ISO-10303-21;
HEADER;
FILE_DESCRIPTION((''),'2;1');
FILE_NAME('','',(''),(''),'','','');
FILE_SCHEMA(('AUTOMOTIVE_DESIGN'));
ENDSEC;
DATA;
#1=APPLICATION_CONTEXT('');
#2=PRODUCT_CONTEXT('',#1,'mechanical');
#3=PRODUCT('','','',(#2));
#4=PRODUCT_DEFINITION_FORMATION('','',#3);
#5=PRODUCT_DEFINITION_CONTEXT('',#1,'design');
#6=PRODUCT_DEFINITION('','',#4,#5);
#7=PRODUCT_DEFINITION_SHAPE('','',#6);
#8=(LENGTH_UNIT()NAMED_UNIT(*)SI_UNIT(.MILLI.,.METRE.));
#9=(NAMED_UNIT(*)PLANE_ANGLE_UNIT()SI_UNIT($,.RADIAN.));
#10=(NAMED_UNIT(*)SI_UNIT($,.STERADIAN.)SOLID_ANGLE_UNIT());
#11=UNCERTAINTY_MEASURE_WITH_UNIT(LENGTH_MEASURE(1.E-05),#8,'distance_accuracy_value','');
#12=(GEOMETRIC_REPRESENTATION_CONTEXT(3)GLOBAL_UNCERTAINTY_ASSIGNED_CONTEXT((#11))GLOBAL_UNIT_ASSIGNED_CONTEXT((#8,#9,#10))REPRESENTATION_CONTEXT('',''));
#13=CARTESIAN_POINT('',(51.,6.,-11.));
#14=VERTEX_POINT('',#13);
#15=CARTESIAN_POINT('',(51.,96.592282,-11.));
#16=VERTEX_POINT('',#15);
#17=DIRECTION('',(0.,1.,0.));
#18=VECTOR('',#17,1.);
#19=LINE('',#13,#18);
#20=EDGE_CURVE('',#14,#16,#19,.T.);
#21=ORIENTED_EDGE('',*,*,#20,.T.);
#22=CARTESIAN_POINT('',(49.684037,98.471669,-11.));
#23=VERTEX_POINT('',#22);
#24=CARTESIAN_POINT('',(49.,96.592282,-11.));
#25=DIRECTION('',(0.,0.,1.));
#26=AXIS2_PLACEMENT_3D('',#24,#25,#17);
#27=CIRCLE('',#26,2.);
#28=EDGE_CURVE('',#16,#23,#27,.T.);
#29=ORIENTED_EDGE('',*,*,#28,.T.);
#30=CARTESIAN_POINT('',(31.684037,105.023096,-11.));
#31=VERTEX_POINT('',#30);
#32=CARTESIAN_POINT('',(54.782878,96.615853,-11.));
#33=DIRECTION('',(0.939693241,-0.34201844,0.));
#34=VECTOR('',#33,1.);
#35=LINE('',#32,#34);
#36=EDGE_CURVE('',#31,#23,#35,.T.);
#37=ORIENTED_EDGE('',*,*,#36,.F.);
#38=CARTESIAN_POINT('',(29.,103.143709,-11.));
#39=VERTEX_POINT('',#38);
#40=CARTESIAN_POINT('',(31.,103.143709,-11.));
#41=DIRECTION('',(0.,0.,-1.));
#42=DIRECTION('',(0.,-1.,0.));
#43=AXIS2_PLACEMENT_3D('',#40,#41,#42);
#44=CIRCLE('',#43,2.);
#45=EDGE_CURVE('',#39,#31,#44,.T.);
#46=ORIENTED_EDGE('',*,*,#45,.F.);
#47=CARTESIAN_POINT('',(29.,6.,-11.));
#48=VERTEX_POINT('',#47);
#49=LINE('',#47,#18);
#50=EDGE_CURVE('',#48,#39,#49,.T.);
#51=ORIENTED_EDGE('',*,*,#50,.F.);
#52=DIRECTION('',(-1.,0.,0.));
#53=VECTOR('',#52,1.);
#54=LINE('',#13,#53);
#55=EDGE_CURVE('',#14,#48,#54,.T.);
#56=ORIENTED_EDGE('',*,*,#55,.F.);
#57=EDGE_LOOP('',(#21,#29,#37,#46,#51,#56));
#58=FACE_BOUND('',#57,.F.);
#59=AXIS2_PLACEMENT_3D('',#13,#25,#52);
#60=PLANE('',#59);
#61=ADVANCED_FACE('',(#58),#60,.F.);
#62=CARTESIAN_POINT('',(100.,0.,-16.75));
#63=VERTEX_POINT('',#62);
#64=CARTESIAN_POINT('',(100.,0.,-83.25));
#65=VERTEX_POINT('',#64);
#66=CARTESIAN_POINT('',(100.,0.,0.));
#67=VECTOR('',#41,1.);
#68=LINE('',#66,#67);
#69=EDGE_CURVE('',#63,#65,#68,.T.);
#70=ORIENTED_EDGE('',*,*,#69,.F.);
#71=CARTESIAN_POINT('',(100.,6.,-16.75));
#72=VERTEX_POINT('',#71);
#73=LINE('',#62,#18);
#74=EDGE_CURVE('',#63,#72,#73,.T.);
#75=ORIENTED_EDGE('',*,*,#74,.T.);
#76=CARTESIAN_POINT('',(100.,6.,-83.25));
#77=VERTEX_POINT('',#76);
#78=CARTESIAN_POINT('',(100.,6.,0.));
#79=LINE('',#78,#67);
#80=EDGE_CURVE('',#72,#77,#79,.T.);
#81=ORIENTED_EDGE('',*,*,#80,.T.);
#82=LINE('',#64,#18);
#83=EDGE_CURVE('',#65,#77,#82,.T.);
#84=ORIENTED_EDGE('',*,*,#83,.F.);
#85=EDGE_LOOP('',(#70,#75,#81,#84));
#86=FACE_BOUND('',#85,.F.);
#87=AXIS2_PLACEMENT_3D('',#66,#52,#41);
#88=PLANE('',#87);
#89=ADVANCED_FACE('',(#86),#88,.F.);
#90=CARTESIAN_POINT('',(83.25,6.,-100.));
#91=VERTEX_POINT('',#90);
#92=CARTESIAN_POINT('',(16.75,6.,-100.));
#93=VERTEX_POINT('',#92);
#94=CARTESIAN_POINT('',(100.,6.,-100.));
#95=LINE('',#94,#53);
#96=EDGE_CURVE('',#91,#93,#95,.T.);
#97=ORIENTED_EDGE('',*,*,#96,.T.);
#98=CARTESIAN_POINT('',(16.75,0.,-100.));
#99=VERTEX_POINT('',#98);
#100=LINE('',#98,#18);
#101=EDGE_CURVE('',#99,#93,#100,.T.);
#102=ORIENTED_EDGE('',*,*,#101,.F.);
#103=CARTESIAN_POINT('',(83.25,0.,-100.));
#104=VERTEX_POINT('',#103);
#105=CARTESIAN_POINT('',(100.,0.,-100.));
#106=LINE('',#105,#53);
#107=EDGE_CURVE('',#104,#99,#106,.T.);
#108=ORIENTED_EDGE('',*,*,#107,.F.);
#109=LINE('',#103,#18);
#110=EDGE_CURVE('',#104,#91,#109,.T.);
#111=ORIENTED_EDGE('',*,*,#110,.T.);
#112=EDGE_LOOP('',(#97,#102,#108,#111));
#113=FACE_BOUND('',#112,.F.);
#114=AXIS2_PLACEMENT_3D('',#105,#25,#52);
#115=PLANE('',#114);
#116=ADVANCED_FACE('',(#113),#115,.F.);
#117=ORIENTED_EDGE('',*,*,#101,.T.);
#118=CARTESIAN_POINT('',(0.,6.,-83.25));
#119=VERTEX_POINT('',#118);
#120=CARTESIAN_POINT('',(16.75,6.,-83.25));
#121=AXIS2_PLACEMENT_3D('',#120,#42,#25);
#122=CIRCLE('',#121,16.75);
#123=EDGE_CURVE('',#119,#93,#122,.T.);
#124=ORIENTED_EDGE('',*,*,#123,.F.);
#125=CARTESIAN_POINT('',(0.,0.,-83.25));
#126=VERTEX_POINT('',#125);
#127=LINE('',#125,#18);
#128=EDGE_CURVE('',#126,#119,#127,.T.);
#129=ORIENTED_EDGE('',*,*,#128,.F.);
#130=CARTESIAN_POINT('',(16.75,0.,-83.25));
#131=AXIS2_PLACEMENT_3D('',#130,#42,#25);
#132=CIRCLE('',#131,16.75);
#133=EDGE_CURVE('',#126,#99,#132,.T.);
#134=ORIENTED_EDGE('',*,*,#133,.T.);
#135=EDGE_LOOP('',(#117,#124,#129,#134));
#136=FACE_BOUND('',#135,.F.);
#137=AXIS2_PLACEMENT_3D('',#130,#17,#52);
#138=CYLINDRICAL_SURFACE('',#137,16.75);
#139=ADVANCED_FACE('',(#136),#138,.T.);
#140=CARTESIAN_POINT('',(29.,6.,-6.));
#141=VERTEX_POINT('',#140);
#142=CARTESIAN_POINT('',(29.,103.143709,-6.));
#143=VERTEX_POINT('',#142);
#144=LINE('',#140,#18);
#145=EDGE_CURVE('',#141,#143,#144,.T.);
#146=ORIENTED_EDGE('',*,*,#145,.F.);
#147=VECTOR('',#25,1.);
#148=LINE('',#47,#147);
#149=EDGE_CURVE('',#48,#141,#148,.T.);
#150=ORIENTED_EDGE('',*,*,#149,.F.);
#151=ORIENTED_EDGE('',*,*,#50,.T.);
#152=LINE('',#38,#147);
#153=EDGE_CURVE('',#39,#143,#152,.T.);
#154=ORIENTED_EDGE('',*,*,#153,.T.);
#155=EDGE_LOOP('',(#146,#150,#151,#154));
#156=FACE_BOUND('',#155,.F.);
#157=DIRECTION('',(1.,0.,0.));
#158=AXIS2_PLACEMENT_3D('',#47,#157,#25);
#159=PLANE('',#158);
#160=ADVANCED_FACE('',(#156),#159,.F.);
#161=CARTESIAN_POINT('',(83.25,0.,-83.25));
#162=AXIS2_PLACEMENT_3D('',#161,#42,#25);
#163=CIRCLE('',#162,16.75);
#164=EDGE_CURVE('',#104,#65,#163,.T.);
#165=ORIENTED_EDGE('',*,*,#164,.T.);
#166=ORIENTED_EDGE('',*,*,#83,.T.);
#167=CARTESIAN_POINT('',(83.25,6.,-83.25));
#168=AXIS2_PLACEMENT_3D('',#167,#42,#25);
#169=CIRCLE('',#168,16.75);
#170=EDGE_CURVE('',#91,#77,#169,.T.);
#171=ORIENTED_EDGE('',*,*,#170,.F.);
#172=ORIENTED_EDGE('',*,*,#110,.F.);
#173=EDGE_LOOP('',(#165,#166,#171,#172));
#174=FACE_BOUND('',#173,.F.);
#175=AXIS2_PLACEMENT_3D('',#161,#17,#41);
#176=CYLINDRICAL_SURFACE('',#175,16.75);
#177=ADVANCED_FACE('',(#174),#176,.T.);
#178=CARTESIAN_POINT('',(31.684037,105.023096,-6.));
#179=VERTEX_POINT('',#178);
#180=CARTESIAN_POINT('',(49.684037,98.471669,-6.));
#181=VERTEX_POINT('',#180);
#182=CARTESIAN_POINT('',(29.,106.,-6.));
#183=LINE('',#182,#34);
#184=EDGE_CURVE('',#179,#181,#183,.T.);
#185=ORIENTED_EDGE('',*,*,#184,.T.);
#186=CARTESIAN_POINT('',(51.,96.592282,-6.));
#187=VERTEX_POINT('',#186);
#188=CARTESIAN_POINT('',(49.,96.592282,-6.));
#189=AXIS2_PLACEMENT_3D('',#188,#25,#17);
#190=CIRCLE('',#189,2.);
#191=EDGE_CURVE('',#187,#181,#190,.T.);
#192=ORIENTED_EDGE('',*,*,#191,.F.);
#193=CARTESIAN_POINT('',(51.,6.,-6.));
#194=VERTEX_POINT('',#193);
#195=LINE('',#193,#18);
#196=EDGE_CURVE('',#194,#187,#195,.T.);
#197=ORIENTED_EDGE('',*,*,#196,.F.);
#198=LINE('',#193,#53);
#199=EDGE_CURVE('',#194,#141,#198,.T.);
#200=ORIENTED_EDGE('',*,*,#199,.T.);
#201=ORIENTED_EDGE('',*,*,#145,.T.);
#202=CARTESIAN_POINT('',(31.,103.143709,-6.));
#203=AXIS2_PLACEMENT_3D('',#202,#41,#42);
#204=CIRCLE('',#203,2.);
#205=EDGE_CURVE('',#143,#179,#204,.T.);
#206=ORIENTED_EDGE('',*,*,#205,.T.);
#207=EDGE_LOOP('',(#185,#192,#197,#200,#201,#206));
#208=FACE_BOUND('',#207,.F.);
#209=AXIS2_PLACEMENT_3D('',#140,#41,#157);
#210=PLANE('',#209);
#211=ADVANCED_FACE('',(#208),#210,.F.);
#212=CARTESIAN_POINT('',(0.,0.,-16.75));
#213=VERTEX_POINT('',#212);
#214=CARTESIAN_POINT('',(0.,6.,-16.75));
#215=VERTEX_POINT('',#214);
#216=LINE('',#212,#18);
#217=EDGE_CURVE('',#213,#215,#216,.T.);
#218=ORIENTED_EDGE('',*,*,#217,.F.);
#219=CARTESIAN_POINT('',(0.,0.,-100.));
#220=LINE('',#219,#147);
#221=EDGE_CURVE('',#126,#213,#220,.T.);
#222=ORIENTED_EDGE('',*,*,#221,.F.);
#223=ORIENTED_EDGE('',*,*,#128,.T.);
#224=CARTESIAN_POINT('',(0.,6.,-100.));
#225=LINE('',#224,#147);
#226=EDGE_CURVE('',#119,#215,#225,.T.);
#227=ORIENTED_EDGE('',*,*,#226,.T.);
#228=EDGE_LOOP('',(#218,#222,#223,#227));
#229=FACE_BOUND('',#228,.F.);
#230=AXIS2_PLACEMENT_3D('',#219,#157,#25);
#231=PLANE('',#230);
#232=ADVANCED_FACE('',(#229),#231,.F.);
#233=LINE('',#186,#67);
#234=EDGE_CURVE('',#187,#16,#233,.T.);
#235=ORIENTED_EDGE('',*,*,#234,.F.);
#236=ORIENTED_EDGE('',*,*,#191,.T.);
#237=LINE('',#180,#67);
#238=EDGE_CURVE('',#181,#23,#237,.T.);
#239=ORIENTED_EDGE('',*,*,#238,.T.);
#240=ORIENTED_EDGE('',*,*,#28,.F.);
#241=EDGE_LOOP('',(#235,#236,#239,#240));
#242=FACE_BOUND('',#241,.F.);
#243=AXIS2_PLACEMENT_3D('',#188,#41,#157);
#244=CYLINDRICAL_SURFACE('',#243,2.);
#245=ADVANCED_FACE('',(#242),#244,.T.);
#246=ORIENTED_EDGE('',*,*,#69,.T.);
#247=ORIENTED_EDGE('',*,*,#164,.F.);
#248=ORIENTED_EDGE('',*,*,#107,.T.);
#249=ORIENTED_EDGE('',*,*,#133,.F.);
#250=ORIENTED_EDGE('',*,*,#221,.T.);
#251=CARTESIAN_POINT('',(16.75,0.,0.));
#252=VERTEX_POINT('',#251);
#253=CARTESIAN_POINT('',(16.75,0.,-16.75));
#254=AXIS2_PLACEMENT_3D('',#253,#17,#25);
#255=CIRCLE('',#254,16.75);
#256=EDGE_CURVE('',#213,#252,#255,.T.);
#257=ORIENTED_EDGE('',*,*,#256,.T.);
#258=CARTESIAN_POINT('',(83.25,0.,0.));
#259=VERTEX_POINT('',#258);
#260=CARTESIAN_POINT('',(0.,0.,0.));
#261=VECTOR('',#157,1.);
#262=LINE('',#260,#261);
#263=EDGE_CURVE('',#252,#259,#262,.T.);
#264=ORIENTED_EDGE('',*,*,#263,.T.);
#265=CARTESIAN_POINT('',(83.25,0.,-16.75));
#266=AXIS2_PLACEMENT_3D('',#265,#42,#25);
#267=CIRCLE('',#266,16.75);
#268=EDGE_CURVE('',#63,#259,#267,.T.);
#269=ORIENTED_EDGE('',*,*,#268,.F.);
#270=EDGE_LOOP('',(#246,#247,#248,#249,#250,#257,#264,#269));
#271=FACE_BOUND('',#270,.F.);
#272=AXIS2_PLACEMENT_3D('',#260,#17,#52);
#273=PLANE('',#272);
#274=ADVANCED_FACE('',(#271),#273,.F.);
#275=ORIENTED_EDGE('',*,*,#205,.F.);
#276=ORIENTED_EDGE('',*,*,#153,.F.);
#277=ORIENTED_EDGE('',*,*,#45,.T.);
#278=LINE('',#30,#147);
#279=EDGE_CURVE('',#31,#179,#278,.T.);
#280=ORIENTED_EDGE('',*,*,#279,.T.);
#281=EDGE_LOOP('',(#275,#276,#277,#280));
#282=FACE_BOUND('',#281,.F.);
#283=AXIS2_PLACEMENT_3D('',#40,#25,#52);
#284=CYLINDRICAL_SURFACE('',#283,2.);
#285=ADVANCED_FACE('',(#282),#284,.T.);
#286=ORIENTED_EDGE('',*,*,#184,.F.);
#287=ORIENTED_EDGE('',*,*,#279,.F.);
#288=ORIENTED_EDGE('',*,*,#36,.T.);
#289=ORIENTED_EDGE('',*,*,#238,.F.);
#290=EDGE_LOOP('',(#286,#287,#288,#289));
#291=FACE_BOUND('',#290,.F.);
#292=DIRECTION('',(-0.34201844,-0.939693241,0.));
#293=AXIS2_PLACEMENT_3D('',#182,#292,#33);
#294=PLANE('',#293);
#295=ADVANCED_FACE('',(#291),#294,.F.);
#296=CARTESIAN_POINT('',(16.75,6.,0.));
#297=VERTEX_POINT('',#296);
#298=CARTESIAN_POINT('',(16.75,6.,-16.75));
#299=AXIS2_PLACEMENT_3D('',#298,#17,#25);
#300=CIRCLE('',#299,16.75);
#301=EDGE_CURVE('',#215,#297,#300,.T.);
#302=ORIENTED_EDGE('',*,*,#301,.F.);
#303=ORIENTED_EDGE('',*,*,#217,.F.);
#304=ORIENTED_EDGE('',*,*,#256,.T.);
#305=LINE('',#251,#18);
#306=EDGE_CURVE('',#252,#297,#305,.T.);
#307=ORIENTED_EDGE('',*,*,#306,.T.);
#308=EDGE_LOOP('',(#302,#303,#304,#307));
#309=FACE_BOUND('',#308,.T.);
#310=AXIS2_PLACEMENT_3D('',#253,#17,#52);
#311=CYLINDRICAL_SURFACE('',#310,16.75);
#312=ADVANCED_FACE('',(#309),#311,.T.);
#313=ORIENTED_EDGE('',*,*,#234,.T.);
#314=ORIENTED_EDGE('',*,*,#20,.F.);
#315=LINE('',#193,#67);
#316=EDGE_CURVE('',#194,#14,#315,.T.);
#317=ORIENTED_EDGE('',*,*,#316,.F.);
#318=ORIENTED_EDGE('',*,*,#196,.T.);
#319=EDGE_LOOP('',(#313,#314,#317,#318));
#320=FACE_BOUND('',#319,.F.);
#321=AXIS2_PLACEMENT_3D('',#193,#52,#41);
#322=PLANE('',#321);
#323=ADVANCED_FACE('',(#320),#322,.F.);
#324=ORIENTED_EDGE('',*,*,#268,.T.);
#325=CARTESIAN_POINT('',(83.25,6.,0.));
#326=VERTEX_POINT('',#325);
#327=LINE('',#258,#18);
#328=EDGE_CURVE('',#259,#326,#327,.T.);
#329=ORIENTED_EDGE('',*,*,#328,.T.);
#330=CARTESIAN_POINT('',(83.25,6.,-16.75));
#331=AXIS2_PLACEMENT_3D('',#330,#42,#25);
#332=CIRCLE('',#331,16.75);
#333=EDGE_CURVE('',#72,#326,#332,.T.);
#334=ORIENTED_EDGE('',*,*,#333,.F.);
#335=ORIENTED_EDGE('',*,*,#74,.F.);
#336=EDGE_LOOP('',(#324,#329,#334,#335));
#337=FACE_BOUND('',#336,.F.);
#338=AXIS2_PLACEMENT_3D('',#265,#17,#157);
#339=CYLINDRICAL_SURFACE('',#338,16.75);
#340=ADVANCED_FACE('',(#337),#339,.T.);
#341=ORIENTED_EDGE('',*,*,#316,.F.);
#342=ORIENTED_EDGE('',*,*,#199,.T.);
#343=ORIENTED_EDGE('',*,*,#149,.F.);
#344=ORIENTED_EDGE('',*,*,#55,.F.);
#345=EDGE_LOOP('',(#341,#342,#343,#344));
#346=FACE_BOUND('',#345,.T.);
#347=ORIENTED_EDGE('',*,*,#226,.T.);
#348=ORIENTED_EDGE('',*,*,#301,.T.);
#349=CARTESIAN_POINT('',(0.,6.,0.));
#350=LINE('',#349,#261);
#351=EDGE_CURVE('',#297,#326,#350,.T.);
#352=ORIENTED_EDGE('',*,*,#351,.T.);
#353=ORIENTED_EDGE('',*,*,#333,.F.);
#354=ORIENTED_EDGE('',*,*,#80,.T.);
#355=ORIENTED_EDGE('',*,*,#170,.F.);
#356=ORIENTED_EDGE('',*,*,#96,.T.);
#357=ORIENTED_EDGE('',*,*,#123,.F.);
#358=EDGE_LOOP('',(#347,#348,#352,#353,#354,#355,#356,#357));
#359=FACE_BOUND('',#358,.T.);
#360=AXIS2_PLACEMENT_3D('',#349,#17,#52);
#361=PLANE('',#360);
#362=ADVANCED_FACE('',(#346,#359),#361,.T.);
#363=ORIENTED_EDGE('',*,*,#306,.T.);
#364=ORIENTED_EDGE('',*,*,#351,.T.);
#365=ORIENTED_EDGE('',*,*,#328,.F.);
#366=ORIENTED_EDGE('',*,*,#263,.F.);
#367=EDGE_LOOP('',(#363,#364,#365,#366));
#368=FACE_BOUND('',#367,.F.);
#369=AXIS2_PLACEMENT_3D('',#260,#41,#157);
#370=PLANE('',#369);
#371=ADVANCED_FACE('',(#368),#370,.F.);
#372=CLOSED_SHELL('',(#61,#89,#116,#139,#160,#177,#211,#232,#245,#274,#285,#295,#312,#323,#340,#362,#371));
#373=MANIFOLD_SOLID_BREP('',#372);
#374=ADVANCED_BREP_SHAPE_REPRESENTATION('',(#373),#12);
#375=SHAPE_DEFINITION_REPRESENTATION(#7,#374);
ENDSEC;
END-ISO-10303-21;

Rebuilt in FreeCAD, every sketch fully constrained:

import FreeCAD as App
import Part
import Sketcher
Q = App.Units.Quantity


def edges_at(feature, points):
    """Names of the edges that pass closest to the given points."""
    edges = feature.Shape.Edges
    near = lambda p: min(range(len(edges)), key=lambda i: edges[i].distToShape(Part.Vertex(*p))[0])
    return sorted({f"Edge{near(p) + 1}" for p in points})

doc = App.newDocument("Part")
body = doc.addObject("PartDesign::Body", "Body")

# Sketch on XZ plane
sketch1 = doc.addObject("Sketcher::SketchObject", "Sketch")
body.addObject(sketch1)
sketch1.AttachmentSupport = (doc.XZ_Plane, [""])
sketch1.MapMode = "FlatFace"
sketch1.addGeometry(Part.LineSegment(App.Vector(0, -100, 0), App.Vector(0, 0, 0)), False)
sketch1.addGeometry(Part.LineSegment(App.Vector(0, 0, 0), App.Vector(100, 0, 0)), False)
sketch1.addGeometry(Part.LineSegment(App.Vector(100, 0, 0), App.Vector(100, -100, 0)), False)
sketch1.addGeometry(Part.LineSegment(App.Vector(100, -100, 0), App.Vector(0, -100, 0)), False)
sketch1.addConstraint(Sketcher.Constraint("Coincident", 0, 2, 1, 1))
sketch1.addConstraint(Sketcher.Constraint("Coincident", 1, 2, 2, 1))
sketch1.addConstraint(Sketcher.Constraint("Coincident", 2, 2, 3, 1))
sketch1.addConstraint(Sketcher.Constraint("Coincident", 3, 2, 0, 1))
sketch1.addConstraint(Sketcher.Constraint("Vertical", 0))
sketch1.addConstraint(Sketcher.Constraint("Horizontal", 1))
sketch1.addConstraint(Sketcher.Constraint("Vertical", 2))
sketch1.addConstraint(Sketcher.Constraint("Horizontal", 3))
sketch1.addConstraint(Sketcher.Constraint("Coincident", 0, 2, -1, 1))
sketch1.addConstraint(Sketcher.Constraint("Equal", 3, 0))
sketch1.addConstraint(Sketcher.Constraint("DistanceX", 1, 1, 1, 2, 100.0))
pad1 = doc.addObject("PartDesign::Pad", "Pad")
body.addObject(pad1)
pad1.Profile = sketch1
pad1.Length = 6
pad1.Reversed = True
doc.recompute()

fillet = doc.addObject("PartDesign::Fillet", "Fillet")
body.addObject(fillet)
fillet.Base = (pad1, edges_at(pad1, [
    (100, 3, 0),
    (100, 3, -100),
    (0, 3, 0),
    (0, 3, -100),
]))
fillet.Radius = 16.75

# Sketch on XZ plane
sketch2 = doc.addObject("Sketcher::SketchObject", "Sketch001")
body.addObject(sketch2)
sketch2.AttachmentSupport = (doc.XZ_Plane, [""])
sketch2.MapMode = "FlatFace"
sketch2.AttachmentOffset = App.Placement(App.Vector(0, 0, -6), App.Rotation())
sketch2.addGeometry(Part.LineSegment(App.Vector(29, -6, 0), App.Vector(51, -6, 0)), False)
sketch2.addGeometry(Part.LineSegment(App.Vector(51, -6, 0), App.Vector(51, -11, 0)), False)
sketch2.addGeometry(Part.LineSegment(App.Vector(51, -11, 0), App.Vector(29, -11, 0)), False)
sketch2.addGeometry(Part.LineSegment(App.Vector(29, -11, 0), App.Vector(29, -6, 0)), False)
sketch2.addConstraint(Sketcher.Constraint("Coincident", 0, 2, 1, 1))
sketch2.addConstraint(Sketcher.Constraint("Coincident", 1, 2, 2, 1))
sketch2.addConstraint(Sketcher.Constraint("Coincident", 2, 2, 3, 1))
sketch2.addConstraint(Sketcher.Constraint("Coincident", 3, 2, 0, 1))
sketch2.addConstraint(Sketcher.Constraint("Horizontal", 0))
sketch2.addConstraint(Sketcher.Constraint("Vertical", 1))
sketch2.addConstraint(Sketcher.Constraint("Horizontal", 2))
sketch2.addConstraint(Sketcher.Constraint("Vertical", 3))
sketch2.addConstraint(Sketcher.Constraint("DistanceX", 0, 1, 0, 2, 22.0))
sketch2.addConstraint(Sketcher.Constraint("DistanceY", 1, 2, 1, 1, 5.0))
sketch2.addConstraint(Sketcher.Constraint("DistanceX", -1, 1, 0, 2, 51.0))
sketch2.addConstraint(Sketcher.Constraint("DistanceY", 0, 2, -1, 1, 6.0))
pad2 = doc.addObject("PartDesign::Pad", "Pad001")
body.addObject(pad2)
pad2.Profile = sketch2
pad2.Length = 100
pad2.Reversed = True

# Sketch on XY plane
sketch3 = doc.addObject("Sketcher::SketchObject", "Sketch002")
body.addObject(sketch3)
sketch3.AttachmentSupport = (doc.XY_Plane, [""])
sketch3.MapMode = "FlatFace"
sketch3.AttachmentOffset = App.Placement(App.Vector(0, 0, -6), App.Rotation())
sketch3.addGeometry(Part.LineSegment(App.Vector(51, 106, 0), App.Vector(29, 106, 0)), False)
sketch3.addGeometry(Part.LineSegment(App.Vector(29, 106, 0), App.Vector(51, 97.9927, 0)), False)
sketch3.addGeometry(Part.LineSegment(App.Vector(51, 97.9927, 0), App.Vector(51, 106, 0)), False)
sketch3.addConstraint(Sketcher.Constraint("Coincident", 0, 2, 1, 1))
sketch3.addConstraint(Sketcher.Constraint("Coincident", 1, 2, 2, 1))
sketch3.addConstraint(Sketcher.Constraint("Coincident", 2, 2, 0, 1))
sketch3.addConstraint(Sketcher.Constraint("Horizontal", 0))
sketch3.addConstraint(Sketcher.Constraint("Vertical", 2))
sketch3.addConstraint(Sketcher.Constraint("Angle", 1, Q("-20 deg")))
sketch3.addConstraint(Sketcher.Constraint("DistanceX", 0, 2, 0, 1, 22.0))
sketch3.addConstraint(Sketcher.Constraint("DistanceX", -1, 1, 0, 2, 29.0))
sketch3.addConstraint(Sketcher.Constraint("DistanceY", -1, 1, 0, 2, 106.0))
pocket1 = doc.addObject("PartDesign::Pocket", "Pocket")
body.addObject(pocket1)
pocket1.Profile = sketch3
pocket1.Length = 10
doc.recompute()

fillet2 = doc.addObject("PartDesign::Fillet", "Fillet001")
body.addObject(fillet2)
fillet2.Base = (pocket1, edges_at(pocket1, [(29, 106, -8.5), (51, 97.993, -8.5)]))
fillet2.Radius = 2

doc.recompute()
